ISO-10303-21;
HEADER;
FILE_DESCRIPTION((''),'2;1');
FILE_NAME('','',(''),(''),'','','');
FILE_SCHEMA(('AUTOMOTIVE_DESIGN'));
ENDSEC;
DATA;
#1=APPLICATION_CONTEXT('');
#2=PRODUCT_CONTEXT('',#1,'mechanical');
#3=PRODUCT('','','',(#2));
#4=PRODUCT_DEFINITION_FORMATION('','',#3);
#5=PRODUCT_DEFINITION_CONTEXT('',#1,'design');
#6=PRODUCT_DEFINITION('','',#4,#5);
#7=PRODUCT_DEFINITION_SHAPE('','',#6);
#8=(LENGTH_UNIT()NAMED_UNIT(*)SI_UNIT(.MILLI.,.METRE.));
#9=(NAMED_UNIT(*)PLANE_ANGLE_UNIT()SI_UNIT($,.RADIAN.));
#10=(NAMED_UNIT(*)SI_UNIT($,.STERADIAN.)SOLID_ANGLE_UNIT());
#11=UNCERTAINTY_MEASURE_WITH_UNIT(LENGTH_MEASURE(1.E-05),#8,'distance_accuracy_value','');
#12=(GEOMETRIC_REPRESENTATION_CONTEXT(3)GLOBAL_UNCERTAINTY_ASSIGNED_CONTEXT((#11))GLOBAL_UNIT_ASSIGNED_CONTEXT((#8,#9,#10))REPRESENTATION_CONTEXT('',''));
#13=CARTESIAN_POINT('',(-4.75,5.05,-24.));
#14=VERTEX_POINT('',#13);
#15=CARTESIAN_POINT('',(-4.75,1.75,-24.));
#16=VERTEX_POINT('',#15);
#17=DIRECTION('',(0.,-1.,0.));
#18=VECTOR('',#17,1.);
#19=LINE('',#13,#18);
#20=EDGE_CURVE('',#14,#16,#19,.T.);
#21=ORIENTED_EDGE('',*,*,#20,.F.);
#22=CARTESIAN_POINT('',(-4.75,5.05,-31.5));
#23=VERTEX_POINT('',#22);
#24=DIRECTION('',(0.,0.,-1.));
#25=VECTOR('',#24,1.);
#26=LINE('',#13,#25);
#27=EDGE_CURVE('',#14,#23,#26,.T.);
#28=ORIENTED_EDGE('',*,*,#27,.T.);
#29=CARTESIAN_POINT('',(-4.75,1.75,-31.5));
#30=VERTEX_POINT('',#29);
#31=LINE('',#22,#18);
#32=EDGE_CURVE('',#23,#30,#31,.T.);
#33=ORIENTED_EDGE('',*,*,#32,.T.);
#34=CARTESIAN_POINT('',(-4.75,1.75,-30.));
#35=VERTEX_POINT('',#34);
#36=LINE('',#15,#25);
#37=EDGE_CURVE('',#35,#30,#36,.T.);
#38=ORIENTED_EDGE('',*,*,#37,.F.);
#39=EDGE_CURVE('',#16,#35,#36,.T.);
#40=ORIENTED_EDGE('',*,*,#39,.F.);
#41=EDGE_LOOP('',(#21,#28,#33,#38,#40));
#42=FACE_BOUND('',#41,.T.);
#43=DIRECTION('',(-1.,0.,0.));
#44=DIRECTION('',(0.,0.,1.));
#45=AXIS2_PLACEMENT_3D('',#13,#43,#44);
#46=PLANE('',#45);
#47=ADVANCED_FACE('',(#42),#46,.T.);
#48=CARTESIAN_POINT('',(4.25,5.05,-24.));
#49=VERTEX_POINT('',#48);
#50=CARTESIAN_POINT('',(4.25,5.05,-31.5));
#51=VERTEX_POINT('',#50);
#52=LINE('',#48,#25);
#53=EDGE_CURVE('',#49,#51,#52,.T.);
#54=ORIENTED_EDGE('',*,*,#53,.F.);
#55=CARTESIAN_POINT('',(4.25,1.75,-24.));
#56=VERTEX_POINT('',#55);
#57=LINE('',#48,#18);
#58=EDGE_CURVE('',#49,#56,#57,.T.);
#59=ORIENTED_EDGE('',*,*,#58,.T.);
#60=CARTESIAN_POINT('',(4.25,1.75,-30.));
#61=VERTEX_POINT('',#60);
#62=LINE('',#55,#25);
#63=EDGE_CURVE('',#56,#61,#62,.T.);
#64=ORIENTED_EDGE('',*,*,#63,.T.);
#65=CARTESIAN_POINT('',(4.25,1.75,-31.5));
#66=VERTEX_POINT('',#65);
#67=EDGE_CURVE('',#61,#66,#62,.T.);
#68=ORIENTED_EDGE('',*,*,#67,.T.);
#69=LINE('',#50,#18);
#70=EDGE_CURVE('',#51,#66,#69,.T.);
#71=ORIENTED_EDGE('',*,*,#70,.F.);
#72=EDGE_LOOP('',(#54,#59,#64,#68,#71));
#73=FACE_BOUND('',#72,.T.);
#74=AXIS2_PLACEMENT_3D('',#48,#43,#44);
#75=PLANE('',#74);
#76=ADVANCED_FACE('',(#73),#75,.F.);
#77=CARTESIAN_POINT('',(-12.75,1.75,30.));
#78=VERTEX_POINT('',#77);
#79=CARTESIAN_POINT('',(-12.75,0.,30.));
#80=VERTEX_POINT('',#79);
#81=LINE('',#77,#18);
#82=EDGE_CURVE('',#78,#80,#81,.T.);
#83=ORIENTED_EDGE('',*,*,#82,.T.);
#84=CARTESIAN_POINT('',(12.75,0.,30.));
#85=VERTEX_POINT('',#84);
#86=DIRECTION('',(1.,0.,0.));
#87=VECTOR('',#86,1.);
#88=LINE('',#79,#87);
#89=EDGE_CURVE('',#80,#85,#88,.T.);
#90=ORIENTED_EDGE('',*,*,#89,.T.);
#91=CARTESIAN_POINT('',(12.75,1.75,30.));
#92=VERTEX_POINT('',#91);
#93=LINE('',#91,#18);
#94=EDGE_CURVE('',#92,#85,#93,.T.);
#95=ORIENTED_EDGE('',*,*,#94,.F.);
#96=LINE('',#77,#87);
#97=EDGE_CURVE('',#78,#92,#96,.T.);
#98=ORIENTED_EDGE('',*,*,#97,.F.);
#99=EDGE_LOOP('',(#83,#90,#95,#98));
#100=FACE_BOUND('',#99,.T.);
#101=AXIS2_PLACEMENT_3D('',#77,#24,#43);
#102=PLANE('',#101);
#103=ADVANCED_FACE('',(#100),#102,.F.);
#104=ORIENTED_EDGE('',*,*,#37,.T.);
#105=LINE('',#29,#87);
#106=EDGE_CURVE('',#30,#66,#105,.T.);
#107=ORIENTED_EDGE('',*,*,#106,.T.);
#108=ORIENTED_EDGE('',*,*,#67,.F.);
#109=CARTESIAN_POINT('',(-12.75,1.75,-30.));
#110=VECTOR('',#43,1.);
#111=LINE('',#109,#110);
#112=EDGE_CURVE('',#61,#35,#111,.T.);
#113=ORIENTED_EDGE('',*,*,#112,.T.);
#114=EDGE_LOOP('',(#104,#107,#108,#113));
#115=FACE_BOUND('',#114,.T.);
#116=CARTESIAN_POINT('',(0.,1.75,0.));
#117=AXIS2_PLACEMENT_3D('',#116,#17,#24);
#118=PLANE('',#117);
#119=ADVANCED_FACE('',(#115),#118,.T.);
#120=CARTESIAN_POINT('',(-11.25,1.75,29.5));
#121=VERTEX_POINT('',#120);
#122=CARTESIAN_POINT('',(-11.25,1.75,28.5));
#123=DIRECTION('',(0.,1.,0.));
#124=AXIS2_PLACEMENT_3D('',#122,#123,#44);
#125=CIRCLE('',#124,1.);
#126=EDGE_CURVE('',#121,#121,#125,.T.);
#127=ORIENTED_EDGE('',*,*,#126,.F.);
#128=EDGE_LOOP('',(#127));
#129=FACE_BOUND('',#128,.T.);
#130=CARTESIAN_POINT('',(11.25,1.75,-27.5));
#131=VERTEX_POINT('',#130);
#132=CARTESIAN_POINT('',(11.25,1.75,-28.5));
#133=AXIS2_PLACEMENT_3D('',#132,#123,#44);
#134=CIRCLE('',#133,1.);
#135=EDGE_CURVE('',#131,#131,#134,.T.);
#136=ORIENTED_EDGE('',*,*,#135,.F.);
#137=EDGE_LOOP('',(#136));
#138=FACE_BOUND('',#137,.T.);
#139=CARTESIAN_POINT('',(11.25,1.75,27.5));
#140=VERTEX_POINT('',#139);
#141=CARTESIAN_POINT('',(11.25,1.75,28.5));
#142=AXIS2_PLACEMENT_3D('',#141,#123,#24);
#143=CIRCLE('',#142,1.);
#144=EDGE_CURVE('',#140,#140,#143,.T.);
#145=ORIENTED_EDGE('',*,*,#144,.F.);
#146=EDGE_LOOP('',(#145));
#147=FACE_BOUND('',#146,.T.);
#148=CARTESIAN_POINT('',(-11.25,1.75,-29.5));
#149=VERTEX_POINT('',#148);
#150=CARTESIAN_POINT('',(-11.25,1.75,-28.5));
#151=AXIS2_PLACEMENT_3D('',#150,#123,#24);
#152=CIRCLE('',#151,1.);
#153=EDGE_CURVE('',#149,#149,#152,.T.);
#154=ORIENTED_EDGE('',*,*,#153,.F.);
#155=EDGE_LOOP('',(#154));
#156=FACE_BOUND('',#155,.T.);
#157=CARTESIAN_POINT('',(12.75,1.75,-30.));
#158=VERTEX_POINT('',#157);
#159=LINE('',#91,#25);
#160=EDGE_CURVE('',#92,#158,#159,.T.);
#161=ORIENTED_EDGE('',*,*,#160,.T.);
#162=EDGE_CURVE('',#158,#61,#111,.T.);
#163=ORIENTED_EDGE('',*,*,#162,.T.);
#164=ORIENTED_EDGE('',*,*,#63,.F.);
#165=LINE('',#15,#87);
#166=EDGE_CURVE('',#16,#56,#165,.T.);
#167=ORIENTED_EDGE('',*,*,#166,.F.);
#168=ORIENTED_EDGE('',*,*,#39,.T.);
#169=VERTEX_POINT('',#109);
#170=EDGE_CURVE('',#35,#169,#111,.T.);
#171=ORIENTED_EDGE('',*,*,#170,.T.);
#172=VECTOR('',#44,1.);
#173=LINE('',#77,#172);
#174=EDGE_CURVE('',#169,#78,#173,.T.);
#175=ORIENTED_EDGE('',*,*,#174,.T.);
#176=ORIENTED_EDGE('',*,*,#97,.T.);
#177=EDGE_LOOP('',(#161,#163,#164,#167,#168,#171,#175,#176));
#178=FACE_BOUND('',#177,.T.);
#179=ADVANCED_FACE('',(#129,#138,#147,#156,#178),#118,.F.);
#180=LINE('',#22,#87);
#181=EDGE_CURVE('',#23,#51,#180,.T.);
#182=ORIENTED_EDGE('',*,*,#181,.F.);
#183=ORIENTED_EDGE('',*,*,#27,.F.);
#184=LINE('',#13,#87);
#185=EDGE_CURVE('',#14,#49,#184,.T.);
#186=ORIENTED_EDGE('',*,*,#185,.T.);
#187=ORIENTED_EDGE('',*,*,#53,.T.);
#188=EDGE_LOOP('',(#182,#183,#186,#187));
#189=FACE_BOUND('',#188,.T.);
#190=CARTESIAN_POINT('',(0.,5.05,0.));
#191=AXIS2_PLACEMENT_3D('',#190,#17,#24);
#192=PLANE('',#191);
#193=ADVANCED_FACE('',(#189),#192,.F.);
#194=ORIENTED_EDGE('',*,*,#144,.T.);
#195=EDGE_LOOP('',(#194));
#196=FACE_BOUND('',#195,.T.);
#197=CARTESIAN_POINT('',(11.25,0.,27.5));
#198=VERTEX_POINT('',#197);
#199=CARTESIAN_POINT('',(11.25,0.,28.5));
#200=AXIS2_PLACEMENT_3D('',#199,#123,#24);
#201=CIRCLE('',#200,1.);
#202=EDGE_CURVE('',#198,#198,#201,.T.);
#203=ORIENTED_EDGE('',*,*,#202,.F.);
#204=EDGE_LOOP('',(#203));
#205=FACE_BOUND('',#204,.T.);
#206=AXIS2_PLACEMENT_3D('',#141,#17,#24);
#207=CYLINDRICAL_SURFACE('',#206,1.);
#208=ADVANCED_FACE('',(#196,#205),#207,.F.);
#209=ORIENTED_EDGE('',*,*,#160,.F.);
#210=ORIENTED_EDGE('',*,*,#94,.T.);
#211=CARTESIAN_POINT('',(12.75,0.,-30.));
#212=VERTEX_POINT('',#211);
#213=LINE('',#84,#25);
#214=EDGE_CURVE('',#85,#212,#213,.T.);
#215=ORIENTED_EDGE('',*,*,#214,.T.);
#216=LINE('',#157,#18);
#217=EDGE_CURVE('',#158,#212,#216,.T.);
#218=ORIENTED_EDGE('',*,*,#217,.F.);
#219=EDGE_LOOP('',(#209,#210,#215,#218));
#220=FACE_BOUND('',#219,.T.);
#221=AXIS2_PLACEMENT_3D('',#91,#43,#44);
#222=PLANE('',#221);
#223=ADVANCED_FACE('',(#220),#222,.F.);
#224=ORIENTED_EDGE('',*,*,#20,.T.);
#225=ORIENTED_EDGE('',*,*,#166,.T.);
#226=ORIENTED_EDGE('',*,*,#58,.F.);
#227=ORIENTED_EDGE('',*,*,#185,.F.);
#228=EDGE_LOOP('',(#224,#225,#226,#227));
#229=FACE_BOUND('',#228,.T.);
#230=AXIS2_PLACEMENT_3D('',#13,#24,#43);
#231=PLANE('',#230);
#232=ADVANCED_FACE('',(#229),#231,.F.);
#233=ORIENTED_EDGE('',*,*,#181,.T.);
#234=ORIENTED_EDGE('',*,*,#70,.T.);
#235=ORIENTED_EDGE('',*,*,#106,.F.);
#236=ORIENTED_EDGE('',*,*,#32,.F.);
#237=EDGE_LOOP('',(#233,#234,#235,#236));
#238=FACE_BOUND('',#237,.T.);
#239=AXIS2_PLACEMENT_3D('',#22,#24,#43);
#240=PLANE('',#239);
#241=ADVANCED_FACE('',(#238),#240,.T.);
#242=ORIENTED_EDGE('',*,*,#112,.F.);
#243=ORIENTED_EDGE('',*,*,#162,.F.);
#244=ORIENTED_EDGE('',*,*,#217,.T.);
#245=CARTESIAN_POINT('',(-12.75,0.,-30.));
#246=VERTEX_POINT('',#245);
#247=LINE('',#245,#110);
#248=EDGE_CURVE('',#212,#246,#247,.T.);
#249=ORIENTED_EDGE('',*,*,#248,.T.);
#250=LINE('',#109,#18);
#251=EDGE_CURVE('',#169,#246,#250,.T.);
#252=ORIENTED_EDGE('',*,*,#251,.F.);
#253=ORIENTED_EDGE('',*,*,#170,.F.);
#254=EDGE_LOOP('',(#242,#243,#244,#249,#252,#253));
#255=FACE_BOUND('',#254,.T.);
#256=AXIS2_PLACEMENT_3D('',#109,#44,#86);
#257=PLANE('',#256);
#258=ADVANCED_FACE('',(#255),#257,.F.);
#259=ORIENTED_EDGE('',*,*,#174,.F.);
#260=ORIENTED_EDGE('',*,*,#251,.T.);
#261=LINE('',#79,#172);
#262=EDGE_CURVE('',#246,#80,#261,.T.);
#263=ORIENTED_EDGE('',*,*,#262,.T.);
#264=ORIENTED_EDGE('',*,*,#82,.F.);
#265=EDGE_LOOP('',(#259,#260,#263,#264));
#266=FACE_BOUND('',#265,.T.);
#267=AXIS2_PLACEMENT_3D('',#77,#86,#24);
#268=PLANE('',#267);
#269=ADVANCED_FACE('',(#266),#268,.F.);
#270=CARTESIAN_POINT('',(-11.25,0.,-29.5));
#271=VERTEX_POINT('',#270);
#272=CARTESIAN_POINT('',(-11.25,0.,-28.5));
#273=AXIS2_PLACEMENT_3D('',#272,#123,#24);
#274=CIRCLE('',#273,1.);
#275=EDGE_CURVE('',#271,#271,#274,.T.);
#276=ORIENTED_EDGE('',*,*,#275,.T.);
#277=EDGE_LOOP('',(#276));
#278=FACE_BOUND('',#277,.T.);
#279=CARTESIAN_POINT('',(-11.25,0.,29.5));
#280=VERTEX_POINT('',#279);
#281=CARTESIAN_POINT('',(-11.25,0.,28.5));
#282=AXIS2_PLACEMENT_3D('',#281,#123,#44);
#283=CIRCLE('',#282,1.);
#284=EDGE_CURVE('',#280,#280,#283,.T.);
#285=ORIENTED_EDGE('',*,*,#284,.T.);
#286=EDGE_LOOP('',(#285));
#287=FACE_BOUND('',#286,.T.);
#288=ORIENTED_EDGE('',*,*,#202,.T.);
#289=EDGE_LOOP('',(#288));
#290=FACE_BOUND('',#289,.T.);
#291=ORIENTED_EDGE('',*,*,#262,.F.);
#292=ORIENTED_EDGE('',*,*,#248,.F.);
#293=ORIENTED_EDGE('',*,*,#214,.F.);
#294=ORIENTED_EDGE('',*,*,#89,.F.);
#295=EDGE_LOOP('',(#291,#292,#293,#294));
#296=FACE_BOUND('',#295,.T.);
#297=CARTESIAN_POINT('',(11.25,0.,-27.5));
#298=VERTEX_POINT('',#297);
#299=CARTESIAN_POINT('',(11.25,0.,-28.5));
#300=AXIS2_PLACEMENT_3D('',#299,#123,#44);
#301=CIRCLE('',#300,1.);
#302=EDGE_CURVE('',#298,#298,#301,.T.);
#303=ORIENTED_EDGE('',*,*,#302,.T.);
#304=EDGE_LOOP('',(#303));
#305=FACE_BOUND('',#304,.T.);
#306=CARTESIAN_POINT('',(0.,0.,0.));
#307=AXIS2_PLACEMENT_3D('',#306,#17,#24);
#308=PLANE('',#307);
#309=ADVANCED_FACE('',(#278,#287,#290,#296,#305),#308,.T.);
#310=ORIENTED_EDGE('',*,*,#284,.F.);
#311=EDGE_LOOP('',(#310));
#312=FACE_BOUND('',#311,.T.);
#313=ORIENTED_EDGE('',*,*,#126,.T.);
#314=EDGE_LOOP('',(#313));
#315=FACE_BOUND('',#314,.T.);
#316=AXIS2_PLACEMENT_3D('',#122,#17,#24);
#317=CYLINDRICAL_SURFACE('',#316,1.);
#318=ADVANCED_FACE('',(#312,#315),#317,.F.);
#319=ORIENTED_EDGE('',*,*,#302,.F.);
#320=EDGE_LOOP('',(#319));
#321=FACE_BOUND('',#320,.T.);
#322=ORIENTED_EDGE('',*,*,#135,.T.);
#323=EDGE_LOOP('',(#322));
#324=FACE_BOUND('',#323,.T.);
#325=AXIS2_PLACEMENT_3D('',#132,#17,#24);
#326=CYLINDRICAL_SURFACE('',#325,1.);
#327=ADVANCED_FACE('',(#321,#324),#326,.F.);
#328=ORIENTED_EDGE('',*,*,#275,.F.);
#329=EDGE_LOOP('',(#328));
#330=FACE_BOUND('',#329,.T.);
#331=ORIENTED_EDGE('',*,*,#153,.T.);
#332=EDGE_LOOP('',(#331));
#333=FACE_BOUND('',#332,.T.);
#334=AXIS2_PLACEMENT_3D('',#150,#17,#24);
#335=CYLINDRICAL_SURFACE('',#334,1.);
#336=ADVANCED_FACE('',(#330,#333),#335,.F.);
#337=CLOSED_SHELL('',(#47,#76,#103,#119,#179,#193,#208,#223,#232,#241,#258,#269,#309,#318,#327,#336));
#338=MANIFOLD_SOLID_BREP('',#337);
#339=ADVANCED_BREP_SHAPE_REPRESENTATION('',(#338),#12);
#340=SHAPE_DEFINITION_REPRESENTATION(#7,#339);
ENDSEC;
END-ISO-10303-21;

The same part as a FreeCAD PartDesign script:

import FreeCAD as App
import Part
import Sketcher

V = App.Vector

doc = App.newDocument("Part")
body = doc.addObject("PartDesign::Body", "Body")

# Sketch on XZ plane
sketch1 = body.newObject("Sketcher::SketchObject", "Sketch")
sketch1.AttachmentSupport = (doc.getObject("XZ_Plane"), [""])
sketch1.MapMode = "FlatFace"
sketch1.addGeometry([
    Part.LineSegment(V(-12.8, -30, 0), V(-12.8, 30, 0)),  # 0
    Part.LineSegment(V(-12.8, 30, 0), V(12.8, 30, 0)),  # 1
    Part.LineSegment(V(12.8, 30, 0), V(12.8, -30, 0)),  # 2
    Part.LineSegment(V(12.8, -30, 0), V(-12.8, -30, 0)),  # 3
    Part.Circle(V(-11.2, 28.5, 0), V(0, 0, 1), 1),  # 4
    Part.Circle(V(11.2, 28.5, 0), V(0, 0, 1), 1),  # 5
    Part.Circle(V(-11.2, -28.5, 0), V(0, 0, 1), 1),  # 6
    Part.Circle(V(11.2, -28.5, 0), V(0, 0, 1), 1),  # 7
], False)
sketch1.addConstraint([
    Sketcher.Constraint("Coincident", 0, 2, 1, 1),
    Sketcher.Constraint("Coincident", 1, 2, 2, 1),
    Sketcher.Constraint("Coincident", 2, 2, 3, 1),
    Sketcher.Constraint("Coincident", 3, 2, 0, 1),
    Sketcher.Constraint("Vertical", 0),
    Sketcher.Constraint("Horizontal", 1),
    Sketcher.Constraint("Vertical", 2),
    Sketcher.Constraint("Horizontal", 3),
    Sketcher.Constraint("Equal", 4, 5),
    Sketcher.Constraint("Equal", 5, 6),
    Sketcher.Constraint("Equal", 6, 7),
    Sketcher.Constraint("Symmetric", 5, 3, 6, 3, -1, 1),
    Sketcher.Constraint("Symmetric", 4, 3, 7, 3, -1, 1),
    Sketcher.Constraint("Symmetric", 0, 2, 2, 2, -1, 1),
    Sketcher.Constraint("Symmetric", 4, 3, 5, 3, -2),
    Sketcher.Constraint("Diameter", 4, 2.0),
    Sketcher.Constraint("DistanceY", 0, 1, 0, 2, 60.0),
    Sketcher.Constraint("DistanceX", 1, 1, 1, 2, 25.5),
    Sketcher.Constraint("DistanceY", 6, 3, 4, 3, 57.0),
    Sketcher.Constraint("DistanceX", 0, 2, 5, 3, 24.0),
])
pad1 = body.newObject("PartDesign::Pad", "Pad")
pad1.Profile = sketch1
pad1.Length = 1.75
pad1.Reversed = True

# Sketch on XZ plane
sketch2 = body.newObject("Sketcher::SketchObject", "Sketch001")
sketch2.AttachmentSupport = (doc.getObject("XZ_Plane"), [""])
sketch2.MapMode = "FlatFace"
sketch2.AttachmentOffset = App.Placement(V(0, 0, -1.75), App.Rotation())
sketch2.addGeometry([
    Part.LineSegment(V(-5, -32, 0), V(-5, -24, 0)),
    Part.LineSegment(V(-5, -24, 0), V(4, -24, 0)),
    Part.LineSegment(V(4, -24, 0), V(4, -32, 0)),
    Part.LineSegment(V(4, -32, 0), V(-5, -32, 0)),
], False)
sketch2.addConstraint([
    Sketcher.Constraint("Coincident", 0, 2, 1, 1),
    Sketcher.Constraint("Coincident", 1, 2, 2, 1),
    Sketcher.Constraint("Coincident", 2, 2, 3, 1),
    Sketcher.Constraint("Coincident", 3, 2, 0, 1),
    Sketcher.Constraint("Vertical", 0),
    Sketcher.Constraint("Horizontal", 1),
    Sketcher.Constraint("Vertical", 2),
    Sketcher.Constraint("Horizontal", 3),
    Sketcher.Constraint("DistanceX", 1, 1, 1, 2, 9.0),
    Sketcher.Constraint("DistanceY", 0, 1, 0, 2, 7.5),
    Sketcher.Constraint("DistanceY", 0, 2, -1, 1, 24.0),
    Sketcher.Constraint("DistanceX", 0, 2, -1, 1, 4.75),
])
pad2 = body.newObject("PartDesign::Pad", "Pad001")
pad2.Profile = sketch2
pad2.Length = 3.3
pad2.Reversed = True

doc.recompute()
